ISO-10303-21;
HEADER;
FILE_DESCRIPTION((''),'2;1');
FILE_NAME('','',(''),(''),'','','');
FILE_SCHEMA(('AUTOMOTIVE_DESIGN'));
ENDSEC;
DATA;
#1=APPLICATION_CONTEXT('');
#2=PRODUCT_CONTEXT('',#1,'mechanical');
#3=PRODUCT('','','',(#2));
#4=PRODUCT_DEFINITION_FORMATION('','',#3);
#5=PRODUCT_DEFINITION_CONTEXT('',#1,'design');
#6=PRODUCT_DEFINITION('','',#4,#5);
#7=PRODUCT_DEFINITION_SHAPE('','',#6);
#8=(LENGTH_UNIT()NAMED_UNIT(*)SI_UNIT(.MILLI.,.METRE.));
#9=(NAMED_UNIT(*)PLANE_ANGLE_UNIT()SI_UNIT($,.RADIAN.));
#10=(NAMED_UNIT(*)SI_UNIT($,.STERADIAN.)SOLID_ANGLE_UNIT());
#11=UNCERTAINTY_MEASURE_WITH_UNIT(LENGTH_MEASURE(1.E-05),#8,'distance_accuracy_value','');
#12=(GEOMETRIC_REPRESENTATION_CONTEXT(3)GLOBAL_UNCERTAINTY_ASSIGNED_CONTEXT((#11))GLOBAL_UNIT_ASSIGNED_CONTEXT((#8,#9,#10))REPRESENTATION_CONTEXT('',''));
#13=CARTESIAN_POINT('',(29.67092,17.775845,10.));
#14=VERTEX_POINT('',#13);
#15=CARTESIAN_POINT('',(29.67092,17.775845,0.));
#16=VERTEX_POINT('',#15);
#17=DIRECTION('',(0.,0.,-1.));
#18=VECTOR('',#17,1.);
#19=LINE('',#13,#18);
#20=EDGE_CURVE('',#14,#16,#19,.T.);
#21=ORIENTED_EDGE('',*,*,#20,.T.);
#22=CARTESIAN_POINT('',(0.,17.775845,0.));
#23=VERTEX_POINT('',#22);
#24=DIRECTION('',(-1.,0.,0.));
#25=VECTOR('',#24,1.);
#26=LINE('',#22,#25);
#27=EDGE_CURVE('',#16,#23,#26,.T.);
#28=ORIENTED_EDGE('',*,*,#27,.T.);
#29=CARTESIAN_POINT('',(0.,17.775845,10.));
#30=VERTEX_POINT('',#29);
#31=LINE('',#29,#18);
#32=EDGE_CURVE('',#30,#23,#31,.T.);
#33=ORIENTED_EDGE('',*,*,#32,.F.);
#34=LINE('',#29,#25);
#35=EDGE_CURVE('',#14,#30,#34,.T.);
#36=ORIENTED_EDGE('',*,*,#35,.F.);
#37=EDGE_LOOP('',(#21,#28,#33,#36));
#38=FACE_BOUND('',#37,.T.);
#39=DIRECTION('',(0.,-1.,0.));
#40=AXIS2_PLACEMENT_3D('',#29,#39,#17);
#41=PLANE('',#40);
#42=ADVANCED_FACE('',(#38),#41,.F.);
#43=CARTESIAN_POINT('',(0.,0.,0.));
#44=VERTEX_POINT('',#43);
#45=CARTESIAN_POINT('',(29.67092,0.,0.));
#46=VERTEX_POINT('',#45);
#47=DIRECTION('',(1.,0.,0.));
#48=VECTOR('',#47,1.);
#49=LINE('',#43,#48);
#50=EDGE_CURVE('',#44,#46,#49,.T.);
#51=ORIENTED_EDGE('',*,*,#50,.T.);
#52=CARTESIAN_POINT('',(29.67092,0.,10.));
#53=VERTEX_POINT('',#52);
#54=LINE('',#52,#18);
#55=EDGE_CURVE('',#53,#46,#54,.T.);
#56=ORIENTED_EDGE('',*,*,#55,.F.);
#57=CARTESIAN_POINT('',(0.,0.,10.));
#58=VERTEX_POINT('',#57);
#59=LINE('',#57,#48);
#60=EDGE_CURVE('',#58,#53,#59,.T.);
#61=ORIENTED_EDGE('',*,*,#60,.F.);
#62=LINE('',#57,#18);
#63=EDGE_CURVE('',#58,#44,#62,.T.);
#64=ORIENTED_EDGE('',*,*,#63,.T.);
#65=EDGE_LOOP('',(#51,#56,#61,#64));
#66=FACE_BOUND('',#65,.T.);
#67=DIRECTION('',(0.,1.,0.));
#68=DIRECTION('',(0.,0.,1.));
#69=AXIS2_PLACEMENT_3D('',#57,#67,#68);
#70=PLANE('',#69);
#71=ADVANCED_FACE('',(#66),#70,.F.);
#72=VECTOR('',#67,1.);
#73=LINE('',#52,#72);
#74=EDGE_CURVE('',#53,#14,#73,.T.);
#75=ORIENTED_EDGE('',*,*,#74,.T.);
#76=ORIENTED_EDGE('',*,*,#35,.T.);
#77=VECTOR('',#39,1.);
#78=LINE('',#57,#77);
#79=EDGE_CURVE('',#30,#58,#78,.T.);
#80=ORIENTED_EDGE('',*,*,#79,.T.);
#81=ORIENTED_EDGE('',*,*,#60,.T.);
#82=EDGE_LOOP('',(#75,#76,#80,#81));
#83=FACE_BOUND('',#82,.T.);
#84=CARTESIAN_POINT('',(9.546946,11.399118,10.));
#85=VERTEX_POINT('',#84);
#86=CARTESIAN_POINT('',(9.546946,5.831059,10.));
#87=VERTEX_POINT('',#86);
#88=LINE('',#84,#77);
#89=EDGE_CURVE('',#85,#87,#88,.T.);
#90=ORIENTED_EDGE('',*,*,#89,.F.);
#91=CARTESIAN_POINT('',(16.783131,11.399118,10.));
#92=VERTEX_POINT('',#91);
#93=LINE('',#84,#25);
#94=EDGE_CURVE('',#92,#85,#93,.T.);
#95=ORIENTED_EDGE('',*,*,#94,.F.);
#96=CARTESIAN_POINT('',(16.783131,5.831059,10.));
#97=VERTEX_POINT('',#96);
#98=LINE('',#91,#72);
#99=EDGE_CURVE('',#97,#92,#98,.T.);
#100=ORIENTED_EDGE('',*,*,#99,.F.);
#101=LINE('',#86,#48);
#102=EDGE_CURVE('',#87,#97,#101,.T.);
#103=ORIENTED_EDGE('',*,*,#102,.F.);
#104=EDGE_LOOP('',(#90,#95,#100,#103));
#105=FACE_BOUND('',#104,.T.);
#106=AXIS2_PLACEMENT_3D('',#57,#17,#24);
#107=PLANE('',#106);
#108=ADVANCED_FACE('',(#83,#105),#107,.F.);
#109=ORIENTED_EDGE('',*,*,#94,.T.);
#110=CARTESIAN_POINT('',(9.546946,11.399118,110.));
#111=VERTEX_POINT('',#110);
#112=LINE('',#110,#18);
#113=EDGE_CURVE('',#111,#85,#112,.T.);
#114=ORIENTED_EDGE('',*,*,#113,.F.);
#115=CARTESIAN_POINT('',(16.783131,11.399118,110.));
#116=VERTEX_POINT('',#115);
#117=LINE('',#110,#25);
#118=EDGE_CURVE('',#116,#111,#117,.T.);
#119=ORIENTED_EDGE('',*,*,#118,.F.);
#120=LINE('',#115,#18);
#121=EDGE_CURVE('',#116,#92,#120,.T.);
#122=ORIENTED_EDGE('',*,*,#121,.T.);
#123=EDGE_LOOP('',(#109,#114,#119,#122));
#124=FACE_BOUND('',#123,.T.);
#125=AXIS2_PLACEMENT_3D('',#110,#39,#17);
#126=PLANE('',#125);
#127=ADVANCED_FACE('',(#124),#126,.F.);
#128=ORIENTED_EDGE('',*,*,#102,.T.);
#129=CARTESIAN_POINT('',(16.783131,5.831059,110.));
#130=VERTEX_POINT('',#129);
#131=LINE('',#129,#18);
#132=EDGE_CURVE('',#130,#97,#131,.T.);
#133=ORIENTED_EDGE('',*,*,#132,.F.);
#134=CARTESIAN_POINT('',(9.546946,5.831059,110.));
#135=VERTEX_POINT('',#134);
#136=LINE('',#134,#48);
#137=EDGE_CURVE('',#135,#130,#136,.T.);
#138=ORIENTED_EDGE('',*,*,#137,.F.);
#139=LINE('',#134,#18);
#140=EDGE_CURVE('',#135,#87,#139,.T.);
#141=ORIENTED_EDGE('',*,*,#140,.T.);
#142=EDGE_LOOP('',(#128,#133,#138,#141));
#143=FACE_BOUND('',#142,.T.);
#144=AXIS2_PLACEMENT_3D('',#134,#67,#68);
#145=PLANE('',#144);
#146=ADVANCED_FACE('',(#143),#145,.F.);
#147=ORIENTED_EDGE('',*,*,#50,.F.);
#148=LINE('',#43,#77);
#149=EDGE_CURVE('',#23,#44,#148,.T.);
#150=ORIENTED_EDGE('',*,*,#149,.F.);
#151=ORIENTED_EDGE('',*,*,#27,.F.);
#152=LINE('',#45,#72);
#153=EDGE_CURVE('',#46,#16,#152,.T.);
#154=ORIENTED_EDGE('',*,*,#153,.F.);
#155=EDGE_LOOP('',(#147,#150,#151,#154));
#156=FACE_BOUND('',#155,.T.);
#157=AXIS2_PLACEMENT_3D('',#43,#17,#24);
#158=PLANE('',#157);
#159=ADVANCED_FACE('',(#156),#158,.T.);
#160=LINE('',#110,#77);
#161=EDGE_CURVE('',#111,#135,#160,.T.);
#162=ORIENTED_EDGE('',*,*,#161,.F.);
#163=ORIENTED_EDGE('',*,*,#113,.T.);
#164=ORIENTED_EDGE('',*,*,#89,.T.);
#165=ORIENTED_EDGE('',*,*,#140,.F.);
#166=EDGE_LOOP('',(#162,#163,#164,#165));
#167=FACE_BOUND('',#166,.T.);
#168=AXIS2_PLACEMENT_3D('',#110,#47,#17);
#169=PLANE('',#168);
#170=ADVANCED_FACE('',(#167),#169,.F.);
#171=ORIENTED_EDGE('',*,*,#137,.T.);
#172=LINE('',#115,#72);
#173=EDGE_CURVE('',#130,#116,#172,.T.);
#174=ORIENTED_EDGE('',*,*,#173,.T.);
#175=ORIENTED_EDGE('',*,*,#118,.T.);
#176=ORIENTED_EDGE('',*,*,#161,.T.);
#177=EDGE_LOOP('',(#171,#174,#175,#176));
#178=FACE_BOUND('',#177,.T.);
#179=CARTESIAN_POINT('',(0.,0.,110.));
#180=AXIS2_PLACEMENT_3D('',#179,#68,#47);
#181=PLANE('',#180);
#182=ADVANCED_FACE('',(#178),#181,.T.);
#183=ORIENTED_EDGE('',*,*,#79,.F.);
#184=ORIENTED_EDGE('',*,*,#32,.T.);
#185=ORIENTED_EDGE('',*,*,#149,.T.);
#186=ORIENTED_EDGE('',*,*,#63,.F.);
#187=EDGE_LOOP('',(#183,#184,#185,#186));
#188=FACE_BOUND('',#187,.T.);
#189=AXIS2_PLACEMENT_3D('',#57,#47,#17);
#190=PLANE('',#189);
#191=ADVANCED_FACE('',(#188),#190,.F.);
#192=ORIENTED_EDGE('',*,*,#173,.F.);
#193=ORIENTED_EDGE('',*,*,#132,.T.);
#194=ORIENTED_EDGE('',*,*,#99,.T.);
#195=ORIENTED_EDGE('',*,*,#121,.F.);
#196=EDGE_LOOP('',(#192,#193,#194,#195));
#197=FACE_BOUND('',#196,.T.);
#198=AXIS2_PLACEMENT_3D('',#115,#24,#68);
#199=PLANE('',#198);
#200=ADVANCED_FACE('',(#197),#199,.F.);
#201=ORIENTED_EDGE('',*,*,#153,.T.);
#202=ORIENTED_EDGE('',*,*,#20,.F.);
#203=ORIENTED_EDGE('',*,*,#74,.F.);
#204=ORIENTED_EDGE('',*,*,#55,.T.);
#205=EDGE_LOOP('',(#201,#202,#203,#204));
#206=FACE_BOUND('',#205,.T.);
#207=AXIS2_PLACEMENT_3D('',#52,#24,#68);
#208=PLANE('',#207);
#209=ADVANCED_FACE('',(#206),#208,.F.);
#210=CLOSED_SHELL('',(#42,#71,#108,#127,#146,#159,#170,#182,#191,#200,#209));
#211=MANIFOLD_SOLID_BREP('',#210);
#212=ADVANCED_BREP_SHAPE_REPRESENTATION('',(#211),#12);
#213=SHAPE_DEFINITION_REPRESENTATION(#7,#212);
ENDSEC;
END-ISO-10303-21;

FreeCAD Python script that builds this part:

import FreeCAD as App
import Part
import Sketcher
from FreeCAD import Vector
Q = App.Units.Quantity

doc = App.newDocument("Part")
body = doc.addObject("PartDesign::Body", "Body")

# Sketch on XY plane
sketch1 = body.newObject("Sketcher::SketchObject", "Sketch")
sketch1.AttachmentSupport = (doc.getObject("XY_Plane"), [""])
sketch1.MapMode = "FlatFace"
sketch1.addGeometry([
    Part.LineSegment(Vector(0, 17.775845, 0), Vector(0, 0, 0)),
    Part.LineSegment(Vector(0, 0, 0), Vector(29.67092, 0, 0)),
    Part.LineSegment(Vector(29.67092, 0, 0), Vector(29.67092, 17.775845, 0)),
    Part.LineSegment(Vector(29.67092, 17.775845, 0), Vector(0, 17.775845, 0)),
], False)
sketch1.addConstraint([
    Sketcher.Constraint("Coincident", 0, 2, 1, 1),
    Sketcher.Constraint("Coincident", 1, 2, 2, 1),
    Sketcher.Constraint("Coincident", 2, 2, 3, 1),
    Sketcher.Constraint("Coincident", 3, 2, 0, 1),
    Sketcher.Constraint("Vertical", 0),
    Sketcher.Constraint("Horizontal", 1),
    Sketcher.Constraint("Vertical", 2),
    Sketcher.Constraint("Horizontal", 3),
    Sketcher.Constraint("Coincident", 0, 2, -1, 1),
    Sketcher.Constraint("DistanceX", 1, 1, 1, 2, Q("29.67092 mm")),
    Sketcher.Constraint("DistanceY", 0, 2, 0, 1, Q("17.775845 mm")),
])
pad1 = body.newObject("PartDesign::Pad", "Pad")
pad1.Profile = sketch1
pad1.Length = 10

# Sketch on XY plane
sketch2 = body.newObject("Sketcher::SketchObject", "Sketch001")
sketch2.AttachmentSupport = (doc.getObject("XY_Plane"), [""])
sketch2.MapMode = "FlatFace"
sketch2.AttachmentOffset = App.Placement(Vector(0, 0, 10), App.Rotation())
sketch2.addGeometry([
    Part.LineSegment(Vector(9.546946, 11.399118, 0), Vector(9.546946, 5.831059, 0)),
    Part.LineSegment(Vector(9.546946, 5.831059, 0), Vector(16.783131, 5.831059, 0)),
    Part.LineSegment(Vector(16.783131, 5.831059, 0), Vector(16.783131, 11.399118, 0)),
    Part.LineSegment(Vector(16.783131, 11.399118, 0), Vector(9.546946, 11.399118, 0)),
], False)
sketch2.addConstraint([
    Sketcher.Constraint("Coincident", 0, 2, 1, 1),
    Sketcher.Constraint("Coincident", 1, 2, 2, 1),
    Sketcher.Constraint("Coincident", 2, 2, 3, 1),
    Sketcher.Constraint("Coincident", 3, 2, 0, 1),
    Sketcher.Constraint("Vertical", 0),
    Sketcher.Constraint("Horizontal", 1),
    Sketcher.Constraint("Vertical", 2),
    Sketcher.Constraint("Horizontal", 3),
    Sketcher.Constraint("DistanceY", 0, 2, 0, 1, Q("5.568059 mm")),
    Sketcher.Constraint("DistanceX", 1, 1, 1, 2, Q("7.236184 mm")),
    Sketcher.Constraint("DistanceY", -1, 1, 0, 2, Q("5.831059 mm")),
    Sketcher.Constraint("DistanceX", -1, 1, 1, 2, Q("16.783131 mm")),
])
pad2 = body.newObject("PartDesign::Pad", "Pad001")
pad2.Profile = sketch2
pad2.Length = 100

doc.recompute()
